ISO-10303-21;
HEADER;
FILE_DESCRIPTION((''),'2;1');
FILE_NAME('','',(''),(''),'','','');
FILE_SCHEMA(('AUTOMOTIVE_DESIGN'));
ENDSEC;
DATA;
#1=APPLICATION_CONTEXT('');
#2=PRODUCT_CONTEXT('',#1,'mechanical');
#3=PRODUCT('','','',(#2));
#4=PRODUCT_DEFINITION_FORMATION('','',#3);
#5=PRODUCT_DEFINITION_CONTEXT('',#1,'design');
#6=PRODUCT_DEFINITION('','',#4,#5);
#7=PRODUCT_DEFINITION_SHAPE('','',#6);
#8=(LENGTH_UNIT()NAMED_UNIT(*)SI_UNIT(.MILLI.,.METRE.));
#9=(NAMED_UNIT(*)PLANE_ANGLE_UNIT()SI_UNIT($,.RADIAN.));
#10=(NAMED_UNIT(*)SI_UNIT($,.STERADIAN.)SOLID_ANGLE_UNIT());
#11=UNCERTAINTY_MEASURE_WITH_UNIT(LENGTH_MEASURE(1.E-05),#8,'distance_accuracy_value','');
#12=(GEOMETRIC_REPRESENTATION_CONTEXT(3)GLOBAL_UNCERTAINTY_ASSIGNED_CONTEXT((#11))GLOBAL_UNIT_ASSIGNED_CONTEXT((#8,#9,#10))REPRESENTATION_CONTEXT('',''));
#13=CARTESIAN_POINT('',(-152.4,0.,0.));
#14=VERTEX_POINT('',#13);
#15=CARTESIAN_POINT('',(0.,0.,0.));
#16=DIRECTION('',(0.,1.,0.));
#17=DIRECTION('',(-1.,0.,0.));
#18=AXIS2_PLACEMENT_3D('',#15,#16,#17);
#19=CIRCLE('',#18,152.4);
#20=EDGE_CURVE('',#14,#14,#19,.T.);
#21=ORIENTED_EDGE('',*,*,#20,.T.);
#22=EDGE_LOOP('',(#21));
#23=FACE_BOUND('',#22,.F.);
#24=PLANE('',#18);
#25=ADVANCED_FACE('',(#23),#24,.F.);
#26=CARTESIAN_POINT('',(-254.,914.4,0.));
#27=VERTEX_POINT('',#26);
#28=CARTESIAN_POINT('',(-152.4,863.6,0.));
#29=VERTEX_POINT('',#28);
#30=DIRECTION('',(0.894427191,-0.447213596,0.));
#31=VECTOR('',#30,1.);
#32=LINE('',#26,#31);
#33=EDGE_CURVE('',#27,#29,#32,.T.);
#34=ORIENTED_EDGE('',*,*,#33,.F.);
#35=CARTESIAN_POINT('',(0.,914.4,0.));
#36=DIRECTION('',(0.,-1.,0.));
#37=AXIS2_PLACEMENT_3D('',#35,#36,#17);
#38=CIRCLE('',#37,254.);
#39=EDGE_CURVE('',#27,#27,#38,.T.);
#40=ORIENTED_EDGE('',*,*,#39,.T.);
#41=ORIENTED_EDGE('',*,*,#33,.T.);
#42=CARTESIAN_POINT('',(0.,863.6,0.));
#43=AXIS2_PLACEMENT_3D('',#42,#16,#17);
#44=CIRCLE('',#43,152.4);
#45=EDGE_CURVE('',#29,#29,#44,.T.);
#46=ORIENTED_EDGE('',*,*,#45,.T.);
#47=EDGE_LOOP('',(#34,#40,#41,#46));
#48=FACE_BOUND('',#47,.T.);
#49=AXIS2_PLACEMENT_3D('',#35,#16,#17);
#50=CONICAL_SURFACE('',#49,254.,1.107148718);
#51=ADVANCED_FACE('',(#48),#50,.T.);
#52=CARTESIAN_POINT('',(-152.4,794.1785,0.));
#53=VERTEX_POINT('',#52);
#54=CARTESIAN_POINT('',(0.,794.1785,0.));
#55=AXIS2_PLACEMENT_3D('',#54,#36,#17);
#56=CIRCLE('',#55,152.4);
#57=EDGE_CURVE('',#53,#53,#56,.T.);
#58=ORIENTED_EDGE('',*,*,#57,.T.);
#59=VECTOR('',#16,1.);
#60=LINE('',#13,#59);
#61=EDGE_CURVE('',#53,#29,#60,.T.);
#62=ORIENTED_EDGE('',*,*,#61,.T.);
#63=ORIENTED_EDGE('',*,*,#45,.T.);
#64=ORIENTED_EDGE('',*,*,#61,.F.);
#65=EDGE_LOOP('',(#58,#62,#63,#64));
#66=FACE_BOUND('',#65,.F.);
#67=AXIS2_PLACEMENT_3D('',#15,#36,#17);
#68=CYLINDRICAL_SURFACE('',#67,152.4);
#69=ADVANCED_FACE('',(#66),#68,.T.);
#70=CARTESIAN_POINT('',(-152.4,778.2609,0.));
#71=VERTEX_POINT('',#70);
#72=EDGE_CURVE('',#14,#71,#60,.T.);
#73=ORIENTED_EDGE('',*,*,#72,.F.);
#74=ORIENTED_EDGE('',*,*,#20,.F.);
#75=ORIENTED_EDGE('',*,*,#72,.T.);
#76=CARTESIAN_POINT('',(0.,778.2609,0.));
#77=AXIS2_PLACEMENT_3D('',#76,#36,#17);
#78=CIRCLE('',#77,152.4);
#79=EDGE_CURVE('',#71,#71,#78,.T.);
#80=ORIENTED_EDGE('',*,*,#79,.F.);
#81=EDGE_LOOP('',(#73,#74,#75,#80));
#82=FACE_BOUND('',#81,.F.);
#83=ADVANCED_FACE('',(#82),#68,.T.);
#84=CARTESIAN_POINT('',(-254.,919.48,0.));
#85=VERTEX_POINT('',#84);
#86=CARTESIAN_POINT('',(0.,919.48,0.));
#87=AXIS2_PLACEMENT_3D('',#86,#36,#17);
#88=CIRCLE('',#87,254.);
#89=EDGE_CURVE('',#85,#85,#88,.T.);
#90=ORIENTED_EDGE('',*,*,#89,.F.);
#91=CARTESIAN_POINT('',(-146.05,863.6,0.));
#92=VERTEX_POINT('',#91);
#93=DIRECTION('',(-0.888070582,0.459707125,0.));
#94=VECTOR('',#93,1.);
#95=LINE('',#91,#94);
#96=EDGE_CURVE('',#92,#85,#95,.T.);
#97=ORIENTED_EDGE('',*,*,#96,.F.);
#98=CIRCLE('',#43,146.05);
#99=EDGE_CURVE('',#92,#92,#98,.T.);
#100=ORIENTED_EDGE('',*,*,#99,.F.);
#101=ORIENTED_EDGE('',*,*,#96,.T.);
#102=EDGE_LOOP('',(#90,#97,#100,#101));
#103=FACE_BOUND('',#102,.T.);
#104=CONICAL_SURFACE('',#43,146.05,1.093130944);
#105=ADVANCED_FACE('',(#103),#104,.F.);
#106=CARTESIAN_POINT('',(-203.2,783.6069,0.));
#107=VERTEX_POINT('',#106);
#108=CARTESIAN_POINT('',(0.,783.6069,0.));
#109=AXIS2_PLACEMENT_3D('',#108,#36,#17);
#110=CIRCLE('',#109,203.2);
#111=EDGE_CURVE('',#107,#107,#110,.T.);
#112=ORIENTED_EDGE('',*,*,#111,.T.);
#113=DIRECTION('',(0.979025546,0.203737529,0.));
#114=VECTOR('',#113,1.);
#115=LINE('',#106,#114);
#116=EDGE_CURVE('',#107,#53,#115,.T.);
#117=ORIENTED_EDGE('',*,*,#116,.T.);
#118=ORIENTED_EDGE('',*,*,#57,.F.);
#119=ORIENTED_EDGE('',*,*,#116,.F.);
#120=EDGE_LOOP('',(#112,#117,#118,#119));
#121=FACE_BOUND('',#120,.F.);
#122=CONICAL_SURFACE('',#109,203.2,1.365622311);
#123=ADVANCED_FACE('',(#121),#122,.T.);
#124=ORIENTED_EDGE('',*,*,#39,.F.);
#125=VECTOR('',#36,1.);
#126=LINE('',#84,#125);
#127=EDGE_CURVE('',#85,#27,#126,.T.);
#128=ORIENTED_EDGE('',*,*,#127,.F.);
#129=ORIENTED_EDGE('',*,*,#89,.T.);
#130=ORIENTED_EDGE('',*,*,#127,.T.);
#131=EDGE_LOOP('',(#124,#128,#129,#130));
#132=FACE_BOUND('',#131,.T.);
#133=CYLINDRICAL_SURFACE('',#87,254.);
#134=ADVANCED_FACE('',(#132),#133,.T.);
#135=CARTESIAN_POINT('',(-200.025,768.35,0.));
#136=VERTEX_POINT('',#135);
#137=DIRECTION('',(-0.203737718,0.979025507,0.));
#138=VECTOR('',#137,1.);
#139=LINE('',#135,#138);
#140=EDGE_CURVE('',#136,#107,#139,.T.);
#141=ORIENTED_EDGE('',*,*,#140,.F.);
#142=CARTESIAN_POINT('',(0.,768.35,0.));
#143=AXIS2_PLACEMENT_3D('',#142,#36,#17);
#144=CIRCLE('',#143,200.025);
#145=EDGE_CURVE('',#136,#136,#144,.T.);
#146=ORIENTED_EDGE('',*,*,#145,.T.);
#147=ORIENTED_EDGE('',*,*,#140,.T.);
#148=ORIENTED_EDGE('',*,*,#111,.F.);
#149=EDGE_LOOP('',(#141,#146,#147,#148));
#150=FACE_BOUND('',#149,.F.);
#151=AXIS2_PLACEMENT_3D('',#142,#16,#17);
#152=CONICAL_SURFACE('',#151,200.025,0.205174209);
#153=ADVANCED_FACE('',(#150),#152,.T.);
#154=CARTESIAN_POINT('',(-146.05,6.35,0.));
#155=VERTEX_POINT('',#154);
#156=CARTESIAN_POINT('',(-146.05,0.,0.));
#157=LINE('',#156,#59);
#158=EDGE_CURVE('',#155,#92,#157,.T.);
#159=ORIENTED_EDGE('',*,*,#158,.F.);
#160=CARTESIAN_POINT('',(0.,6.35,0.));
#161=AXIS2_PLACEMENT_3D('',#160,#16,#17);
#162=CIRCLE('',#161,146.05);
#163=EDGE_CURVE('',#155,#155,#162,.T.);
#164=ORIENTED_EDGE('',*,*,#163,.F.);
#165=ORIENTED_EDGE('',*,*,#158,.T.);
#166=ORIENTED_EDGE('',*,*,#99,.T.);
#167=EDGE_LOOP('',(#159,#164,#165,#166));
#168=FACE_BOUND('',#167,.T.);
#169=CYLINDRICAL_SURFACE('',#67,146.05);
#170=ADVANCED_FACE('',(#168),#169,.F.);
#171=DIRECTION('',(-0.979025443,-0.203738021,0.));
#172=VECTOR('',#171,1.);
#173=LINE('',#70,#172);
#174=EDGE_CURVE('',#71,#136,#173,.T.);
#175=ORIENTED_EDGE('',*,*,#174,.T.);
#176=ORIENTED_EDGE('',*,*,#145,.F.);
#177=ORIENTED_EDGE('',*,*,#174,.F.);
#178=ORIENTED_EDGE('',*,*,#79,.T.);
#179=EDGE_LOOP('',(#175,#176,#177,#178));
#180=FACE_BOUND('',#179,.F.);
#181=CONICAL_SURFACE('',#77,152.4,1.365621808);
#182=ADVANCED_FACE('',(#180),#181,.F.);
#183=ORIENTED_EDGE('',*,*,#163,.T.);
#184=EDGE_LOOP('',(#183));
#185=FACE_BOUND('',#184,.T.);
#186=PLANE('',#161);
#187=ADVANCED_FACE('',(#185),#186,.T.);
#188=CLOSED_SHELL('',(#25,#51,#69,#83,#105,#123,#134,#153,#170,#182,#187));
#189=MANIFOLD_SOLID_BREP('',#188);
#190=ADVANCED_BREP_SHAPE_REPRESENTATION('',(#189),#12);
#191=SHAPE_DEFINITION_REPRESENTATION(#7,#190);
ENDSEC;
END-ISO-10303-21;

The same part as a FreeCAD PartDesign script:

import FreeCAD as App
import Part
import Sketcher

V = App.Vector
Q = App.Units.Quantity

doc = App.newDocument("Part")
body = doc.addObject("PartDesign::Body", "Body")

sketch1 = body.newObject("Sketcher::SketchObject", "Sketch")
sketch1.AttachmentSupport = (doc.getObject("XZ_Plane"), [""])
sketch1.MapMode = "FlatFace"
sketch1.addGeometry(Part.Circle(V(0, 0, 0), V(0, 0, 1), 152), False)
sketch1.addGeometry(Part.Circle(V(0, 0, 0), V(0, 0, 1), 146), False)
sketch1.addConstraint(Sketcher.Constraint("Coincident", 0, 3, -1, 1))
sketch1.addConstraint(Sketcher.Constraint("Coincident", 1, 3, -1, 1))
sketch1.addConstraint(Sketcher.Constraint("Diameter", 0, Q("12 in")))
sketch1.addConstraint(Sketcher.Constraint("Diameter", 1, Q("11.5 in")))
pad1 = body.newObject("PartDesign::Pad", "Pad")
pad1.Profile = sketch1
pad1.Length = Q("34 in")
pad1.Reversed = True

sketch2 = body.newObject("Sketcher::SketchObject", "Sketch001")
sketch2.AttachmentSupport = (doc.getObject("XZ_Plane"), [""])
sketch2.MapMode = "FlatFace"
sketch2.addGeometry(Part.Circle(V(0, 0, 0), V(0, 0, 1), 146), False)
sketch2.addConstraint(Sketcher.Constraint("Coincident", 0, 3, -1, 1))
sketch2.addConstraint(Sketcher.Constraint("Diameter", 0, Q("11.5 in")))
pad2 = body.newObject("PartDesign::Pad", "Pad001")
pad2.Profile = sketch2
pad2.Length = Q("0.25 in")
pad2.Reversed = True

sketch3 = body.newObject("Sketcher::SketchObject", "Sketch002")
sketch3.AttachmentSupport = (doc.getObject("XY_Plane"), [""])
sketch3.MapMode = "FlatFace"
sketch3.addGeometry(Part.LineSegment(V(-152, 778, 0), V(-152, 794, 0)), False)
sketch3.addGeometry(Part.LineSegment(V(-152, 794, 0), V(-203, 784, 0)), False)
sketch3.addGeometry(Part.LineSegment(V(-203, 784, 0), V(-200, 768, 0)), False)
sketch3.addGeometry(Part.LineSegment(V(-200, 768, 0), V(-152, 778, 0)), False)
sketch3.addGeometry(Part.LineSegment(V(-152, 864, 0), V(-146, 864, 0)), False)
sketch3.addGeometry(Part.LineSegment(V(-146, 864, 0), V(-254, 919, 0)), False)
sketch3.addGeometry(Part.LineSegment(V(-254, 919, 0), V(-254, 914, 0)), False)
sketch3.addGeometry(Part.LineSegment(V(-254, 914, 0), V(-152, 864, 0)), False)
sketch3.addConstraint(Sketcher.Constraint("Coincident", 0, 2, 1, 1))
sketch3.addConstraint(Sketcher.Constraint("Coincident", 1, 2, 2, 1))
sketch3.addConstraint(Sketcher.Constraint("Coincident", 2, 2, 3, 1))
sketch3.addConstraint(Sketcher.Constraint("Coincident", 3, 2, 0, 1))
sketch3.addConstraint(Sketcher.Constraint("Coincident", 4, 2, 5, 1))
sketch3.addConstraint(Sketcher.Constraint("Coincident", 5, 2, 6, 1))
sketch3.addConstraint(Sketcher.Constraint("Coincident", 6, 2, 7, 1))
sketch3.addConstraint(Sketcher.Constraint("Coincident", 7, 2, 4, 1))
sketch3.addConstraint(Sketcher.Constraint("Vertical", 0))
sketch3.addConstraint(Sketcher.Constraint("Horizontal", 4))
sketch3.addConstraint(Sketcher.Constraint("Vertical", 6))
sketch3.addConstraint(Sketcher.Constraint("Perpendicular", 1, 2))
sketch3.addConstraint(Sketcher.Constraint("Perpendicular", 2, 3))
sketch3.addConstraint(Sketcher.Constraint("Vertical", 3, 2, 7, 2))
sketch3.addConstraint(Sketcher.Constraint("DistanceY", 6, 2, 6, 1, Q("0.2 in")))
sketch3.addConstraint(Sketcher.Constraint("DistanceX", 5, 2, 0, 2, Q("4 in")))
sketch3.addConstraint(Sketcher.Constraint("DistanceY", 4, 2, 5, 2, Q("2.2 in")))
sketch3.addConstraint(Sketcher.Constraint("DistanceX", 0, 2, -1, 1, Q("6 in")))
sketch3.addConstraint(Sketcher.Constraint("DistanceX", 1, 2, -1, 1, Q("8 in")))
sketch3.addConstraint(Sketcher.Constraint("DistanceY", -1, 1, 4, 2, Q("34 in")))
sketch3.addConstraint(Sketcher.Constraint("DistanceX", 4, 1, 4, 2, Q("0.25 in")))
sketch3.addConstraint(Sketcher.Constraint("DistanceY", -1, 1, 2, 2, Q("30.25 in")))
sketch3.addConstraint(Sketcher.Constraint("DistanceX", 2, 2, -1, 1, Q("7.875 in")))
sketch3.addConstraint(Sketcher.Constraint("DistanceY", 0, 1, 0, 2, Q("15.9176 mm")))
revolution = body.newObject("PartDesign::Revolution", "Revolution")
revolution.Profile = sketch3
revolution.ReferenceAxis = (sketch3, ["V_Axis"])
revolution.Angle = 360

doc.recompute()
